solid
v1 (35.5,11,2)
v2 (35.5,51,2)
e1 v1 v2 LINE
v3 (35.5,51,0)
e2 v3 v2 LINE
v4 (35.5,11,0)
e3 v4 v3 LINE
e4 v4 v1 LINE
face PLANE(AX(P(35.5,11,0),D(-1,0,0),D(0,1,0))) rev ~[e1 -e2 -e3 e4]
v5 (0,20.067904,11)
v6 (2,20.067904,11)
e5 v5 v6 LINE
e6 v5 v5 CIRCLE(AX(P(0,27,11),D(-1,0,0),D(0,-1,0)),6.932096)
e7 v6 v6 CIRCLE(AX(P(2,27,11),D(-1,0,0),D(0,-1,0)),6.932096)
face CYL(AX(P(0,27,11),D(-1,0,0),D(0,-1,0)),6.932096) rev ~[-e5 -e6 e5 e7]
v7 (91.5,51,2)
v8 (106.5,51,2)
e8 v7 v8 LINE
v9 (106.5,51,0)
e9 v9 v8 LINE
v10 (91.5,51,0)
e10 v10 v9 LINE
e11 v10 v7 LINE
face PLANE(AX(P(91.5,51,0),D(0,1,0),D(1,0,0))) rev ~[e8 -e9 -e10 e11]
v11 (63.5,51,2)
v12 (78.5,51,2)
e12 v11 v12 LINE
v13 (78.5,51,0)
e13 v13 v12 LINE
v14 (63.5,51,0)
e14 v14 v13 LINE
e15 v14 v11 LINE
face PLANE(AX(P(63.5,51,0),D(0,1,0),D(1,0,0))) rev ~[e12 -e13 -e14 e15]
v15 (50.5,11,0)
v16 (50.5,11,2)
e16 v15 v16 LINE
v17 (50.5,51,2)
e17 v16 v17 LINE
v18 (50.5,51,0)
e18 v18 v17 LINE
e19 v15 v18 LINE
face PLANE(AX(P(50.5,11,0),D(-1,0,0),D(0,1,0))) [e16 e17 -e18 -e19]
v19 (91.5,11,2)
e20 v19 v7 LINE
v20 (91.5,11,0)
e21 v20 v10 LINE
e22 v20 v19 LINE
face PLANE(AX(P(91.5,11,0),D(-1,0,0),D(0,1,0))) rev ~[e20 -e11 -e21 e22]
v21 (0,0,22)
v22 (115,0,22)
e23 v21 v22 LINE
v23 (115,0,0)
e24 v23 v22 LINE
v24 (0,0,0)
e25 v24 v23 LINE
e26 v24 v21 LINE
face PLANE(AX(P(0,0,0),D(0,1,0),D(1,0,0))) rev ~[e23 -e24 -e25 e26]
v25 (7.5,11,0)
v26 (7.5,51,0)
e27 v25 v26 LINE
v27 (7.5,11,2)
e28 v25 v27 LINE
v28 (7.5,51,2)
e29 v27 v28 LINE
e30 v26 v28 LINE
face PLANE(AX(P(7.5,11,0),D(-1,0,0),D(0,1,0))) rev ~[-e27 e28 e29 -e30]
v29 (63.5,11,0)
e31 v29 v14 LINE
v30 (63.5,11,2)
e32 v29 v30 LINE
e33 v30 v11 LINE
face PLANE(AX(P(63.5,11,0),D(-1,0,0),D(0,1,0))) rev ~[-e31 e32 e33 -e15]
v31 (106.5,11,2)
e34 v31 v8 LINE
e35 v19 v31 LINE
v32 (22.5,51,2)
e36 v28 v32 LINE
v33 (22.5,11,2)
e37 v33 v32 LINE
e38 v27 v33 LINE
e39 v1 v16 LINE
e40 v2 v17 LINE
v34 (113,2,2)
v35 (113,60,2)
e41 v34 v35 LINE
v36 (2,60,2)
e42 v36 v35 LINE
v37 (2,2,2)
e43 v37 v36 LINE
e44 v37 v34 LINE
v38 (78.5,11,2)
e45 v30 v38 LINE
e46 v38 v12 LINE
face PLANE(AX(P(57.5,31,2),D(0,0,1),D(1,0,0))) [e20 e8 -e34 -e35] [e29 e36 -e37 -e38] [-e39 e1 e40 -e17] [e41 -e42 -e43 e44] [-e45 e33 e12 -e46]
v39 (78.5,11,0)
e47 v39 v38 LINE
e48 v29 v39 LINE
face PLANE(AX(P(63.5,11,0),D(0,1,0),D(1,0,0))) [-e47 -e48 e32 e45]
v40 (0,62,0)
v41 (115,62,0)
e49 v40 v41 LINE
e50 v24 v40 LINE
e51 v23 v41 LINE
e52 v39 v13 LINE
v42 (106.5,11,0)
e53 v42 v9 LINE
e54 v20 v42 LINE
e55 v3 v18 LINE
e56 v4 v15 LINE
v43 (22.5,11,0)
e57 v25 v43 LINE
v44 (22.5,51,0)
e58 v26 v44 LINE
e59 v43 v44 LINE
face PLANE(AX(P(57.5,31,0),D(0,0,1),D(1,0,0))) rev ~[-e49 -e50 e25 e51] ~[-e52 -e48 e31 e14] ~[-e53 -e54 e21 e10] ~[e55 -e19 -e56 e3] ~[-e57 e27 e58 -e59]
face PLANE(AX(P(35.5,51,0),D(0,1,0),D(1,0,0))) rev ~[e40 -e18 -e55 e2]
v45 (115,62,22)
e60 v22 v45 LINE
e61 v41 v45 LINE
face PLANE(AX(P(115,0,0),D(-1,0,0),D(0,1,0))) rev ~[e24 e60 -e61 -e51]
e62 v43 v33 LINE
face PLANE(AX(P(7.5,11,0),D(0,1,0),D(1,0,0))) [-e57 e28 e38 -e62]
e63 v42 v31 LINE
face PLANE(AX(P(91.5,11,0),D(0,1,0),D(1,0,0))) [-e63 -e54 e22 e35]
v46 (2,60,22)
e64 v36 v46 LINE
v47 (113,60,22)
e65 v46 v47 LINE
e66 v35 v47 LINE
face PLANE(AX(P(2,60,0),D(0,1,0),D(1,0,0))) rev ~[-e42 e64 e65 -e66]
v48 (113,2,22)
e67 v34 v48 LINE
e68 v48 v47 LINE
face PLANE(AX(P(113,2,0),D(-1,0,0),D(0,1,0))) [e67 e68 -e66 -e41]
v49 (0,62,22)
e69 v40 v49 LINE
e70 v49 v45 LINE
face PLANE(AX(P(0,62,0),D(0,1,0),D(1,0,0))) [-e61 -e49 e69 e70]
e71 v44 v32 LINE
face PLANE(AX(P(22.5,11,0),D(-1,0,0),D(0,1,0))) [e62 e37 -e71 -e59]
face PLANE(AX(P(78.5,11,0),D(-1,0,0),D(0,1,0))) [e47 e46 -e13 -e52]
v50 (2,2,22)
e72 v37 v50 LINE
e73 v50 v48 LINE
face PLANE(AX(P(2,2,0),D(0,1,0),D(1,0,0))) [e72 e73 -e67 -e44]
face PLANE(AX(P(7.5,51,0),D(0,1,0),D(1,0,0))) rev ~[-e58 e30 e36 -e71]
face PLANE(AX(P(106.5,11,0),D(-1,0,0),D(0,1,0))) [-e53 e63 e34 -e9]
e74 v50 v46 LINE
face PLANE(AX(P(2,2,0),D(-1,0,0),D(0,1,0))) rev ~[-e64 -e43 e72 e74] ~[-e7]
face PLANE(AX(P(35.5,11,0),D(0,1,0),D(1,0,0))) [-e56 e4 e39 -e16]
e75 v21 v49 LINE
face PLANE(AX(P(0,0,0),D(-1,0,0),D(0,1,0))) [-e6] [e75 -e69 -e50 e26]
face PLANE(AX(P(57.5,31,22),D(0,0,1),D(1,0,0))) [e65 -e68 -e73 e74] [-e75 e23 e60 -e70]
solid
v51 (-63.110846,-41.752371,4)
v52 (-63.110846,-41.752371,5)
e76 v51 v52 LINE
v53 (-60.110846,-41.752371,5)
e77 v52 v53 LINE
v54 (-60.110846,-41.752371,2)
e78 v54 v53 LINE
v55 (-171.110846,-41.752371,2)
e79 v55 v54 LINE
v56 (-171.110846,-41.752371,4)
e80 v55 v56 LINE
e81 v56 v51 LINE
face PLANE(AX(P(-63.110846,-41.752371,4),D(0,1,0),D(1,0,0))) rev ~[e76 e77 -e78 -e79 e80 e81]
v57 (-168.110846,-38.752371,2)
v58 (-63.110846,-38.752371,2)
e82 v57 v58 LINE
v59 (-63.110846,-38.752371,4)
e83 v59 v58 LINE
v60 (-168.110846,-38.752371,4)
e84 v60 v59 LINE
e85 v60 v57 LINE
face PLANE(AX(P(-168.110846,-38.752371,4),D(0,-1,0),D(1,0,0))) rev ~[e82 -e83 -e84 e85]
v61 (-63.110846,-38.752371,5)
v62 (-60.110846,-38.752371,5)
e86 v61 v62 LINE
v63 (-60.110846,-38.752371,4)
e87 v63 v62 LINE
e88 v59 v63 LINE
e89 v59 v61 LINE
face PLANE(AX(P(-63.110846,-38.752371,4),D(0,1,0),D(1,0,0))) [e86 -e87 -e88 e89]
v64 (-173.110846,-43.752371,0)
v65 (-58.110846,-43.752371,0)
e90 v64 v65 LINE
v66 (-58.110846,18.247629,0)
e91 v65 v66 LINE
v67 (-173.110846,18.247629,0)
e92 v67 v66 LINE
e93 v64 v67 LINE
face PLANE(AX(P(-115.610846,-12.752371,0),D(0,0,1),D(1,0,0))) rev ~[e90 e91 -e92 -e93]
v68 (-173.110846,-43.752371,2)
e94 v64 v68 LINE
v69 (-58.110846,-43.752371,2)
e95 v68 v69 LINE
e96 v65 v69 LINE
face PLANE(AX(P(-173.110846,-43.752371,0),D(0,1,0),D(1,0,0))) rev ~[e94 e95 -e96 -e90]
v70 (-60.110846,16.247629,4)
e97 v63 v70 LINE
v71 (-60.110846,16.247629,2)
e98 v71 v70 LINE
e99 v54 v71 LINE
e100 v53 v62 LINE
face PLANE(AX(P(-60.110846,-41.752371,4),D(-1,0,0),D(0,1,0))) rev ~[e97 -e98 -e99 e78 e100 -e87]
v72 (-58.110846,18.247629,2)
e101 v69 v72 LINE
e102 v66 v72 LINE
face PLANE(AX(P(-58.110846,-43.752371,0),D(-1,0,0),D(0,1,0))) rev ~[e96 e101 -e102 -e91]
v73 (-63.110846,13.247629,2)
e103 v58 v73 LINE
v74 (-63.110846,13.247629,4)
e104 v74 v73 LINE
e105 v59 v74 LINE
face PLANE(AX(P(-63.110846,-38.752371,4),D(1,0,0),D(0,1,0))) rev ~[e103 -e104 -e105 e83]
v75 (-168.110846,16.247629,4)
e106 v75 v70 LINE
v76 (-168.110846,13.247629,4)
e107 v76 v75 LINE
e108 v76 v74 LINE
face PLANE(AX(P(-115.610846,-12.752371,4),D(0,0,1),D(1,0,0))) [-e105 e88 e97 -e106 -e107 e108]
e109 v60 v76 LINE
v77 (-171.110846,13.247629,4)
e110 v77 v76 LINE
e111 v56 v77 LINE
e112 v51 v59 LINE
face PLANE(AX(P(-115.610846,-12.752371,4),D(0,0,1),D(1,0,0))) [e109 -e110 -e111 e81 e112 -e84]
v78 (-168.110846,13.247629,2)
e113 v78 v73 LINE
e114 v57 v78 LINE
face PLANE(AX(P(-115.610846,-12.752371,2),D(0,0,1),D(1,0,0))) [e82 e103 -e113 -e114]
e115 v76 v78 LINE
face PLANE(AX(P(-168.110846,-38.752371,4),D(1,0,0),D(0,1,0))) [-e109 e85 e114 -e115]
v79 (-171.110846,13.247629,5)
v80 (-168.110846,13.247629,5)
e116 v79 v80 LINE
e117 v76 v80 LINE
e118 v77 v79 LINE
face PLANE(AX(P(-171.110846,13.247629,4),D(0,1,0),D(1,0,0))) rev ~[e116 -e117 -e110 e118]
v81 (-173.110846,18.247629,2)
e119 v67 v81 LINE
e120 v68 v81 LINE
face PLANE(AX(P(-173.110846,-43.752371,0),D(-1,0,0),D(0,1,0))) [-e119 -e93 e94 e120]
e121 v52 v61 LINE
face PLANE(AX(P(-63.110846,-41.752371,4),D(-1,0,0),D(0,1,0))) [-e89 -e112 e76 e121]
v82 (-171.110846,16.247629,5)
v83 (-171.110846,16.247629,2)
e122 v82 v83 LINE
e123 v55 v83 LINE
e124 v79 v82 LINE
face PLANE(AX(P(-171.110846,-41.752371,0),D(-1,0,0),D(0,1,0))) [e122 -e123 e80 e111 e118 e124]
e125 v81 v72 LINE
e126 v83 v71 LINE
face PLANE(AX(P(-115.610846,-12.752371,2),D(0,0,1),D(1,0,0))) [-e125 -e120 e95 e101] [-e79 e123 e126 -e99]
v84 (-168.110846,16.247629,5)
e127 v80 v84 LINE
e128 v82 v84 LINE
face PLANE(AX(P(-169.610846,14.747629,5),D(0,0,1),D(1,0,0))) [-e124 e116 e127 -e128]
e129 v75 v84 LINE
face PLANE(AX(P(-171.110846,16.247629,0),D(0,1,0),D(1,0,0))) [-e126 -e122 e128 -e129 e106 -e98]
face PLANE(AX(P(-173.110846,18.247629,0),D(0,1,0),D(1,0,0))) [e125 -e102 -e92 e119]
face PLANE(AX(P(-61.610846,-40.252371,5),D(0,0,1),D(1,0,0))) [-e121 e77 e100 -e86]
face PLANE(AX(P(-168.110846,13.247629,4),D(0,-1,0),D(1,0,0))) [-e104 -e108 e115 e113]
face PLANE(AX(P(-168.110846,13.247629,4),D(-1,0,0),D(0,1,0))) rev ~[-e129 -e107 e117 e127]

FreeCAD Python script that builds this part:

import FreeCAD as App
import Part
import Sketcher
Q = App.Units.Quantity


def add_polygon(sketch, points):
    """Adds a closed chain of lines whose ends are joined by coincident constraints."""
    first, n = sketch.GeometryCount, len(points)
    for a, b in zip(points, points[1:] + points[:1]):
        sketch.addGeometry(Part.LineSegment(App.Vector(*a, 0), App.Vector(*b, 0)), False)
    for i in range(n):
        sketch.addConstraint(Sketcher.Constraint("Coincident", first + i, 2, first + (i + 1) % n, 1))

doc = App.newDocument("Part")
body = doc.addObject("PartDesign::Body", "Body")

# Sketch on XY plane
sketch1 = body.newObject("Sketcher::SketchObject", "Sketch")
sketch1.AttachmentSupport = (doc.getObject("XY_Plane"), [""])
sketch1.MapMode = "FlatFace"
add_polygon(sketch1, [(2, 60), (2, 2), (113, 2), (113, 60)])  # lines 0-3
add_polygon(sketch1, [(22.5, 11), (7.5, 11), (7.5, 51), (22.5, 51)])  # lines 4-7
add_polygon(sketch1, [(50.5, 11), (35.5, 11), (35.5, 51), (50.5, 51)])  # lines 8-11
add_polygon(sketch1, [(78.5, 11), (63.5, 11), (63.5, 51), (78.5, 51)])  # lines 12-15
add_polygon(sketch1, [(106.5, 11), (91.5, 11), (91.5, 51), (106.5, 51)])  # lines 16-19
sketch1.addConstraint([
    Sketcher.Constraint("Vertical", 0),
    Sketcher.Constraint("Horizontal", 1),
    Sketcher.Constraint("Vertical", 2),
    Sketcher.Constraint("Horizontal", 3),
    Sketcher.Constraint("Horizontal", 4),
    Sketcher.Constraint("Vertical", 5),
    Sketcher.Constraint("Horizontal", 6),
    Sketcher.Constraint("Vertical", 7),
    Sketcher.Constraint("Horizontal", 8),
    Sketcher.Constraint("Vertical", 9),
    Sketcher.Constraint("Horizontal", 10),
    Sketcher.Constraint("Vertical", 11),
    Sketcher.Constraint("Horizontal", 12),
    Sketcher.Constraint("Vertical", 13),
    Sketcher.Constraint("Horizontal", 14),
    Sketcher.Constraint("Vertical", 15),
    Sketcher.Constraint("Horizontal", 16),
    Sketcher.Constraint("Vertical", 17),
    Sketcher.Constraint("Horizontal", 18),
    Sketcher.Constraint("Vertical", 19),
    Sketcher.Constraint("Horizontal", 7, 2, 8, 2),
    Sketcher.Constraint("Horizontal", 6, 2, 9, 2),
    Sketcher.Constraint("Horizontal", 11, 2, 12, 2),
    Sketcher.Constraint("Horizontal", 10, 2, 13, 2),
    Sketcher.Constraint("Horizontal", 15, 2, 16, 2),
    Sketcher.Constraint("Horizontal", 14, 2, 17, 2),
    Sketcher.Constraint("Equal", 6, 8),
    Sketcher.Constraint("Equal", 10, 12),
    Sketcher.Constraint("Equal", 14, 16),
    Sketcher.Constraint("DistanceX", 1, 1, 1, 2, Q("111 mm")),
    Sketcher.Constraint("DistanceX", 4, 2, 4, 1, Q("15 mm")),
    Sketcher.Constraint("DistanceY", 0, 2, 0, 1, Q("58 mm")),
    Sketcher.Constraint("DistanceY", 5, 1, 5, 2, Q("40 mm")),
    Sketcher.Constraint("DistanceX", -1, 1, 0, 2, Q("2 mm")),
    Sketcher.Constraint("DistanceY", -1, 1, 0, 2, Q("2 mm")),
    Sketcher.Constraint("DistanceY", -1, 1, 4, 2, Q("11 mm")),
    Sketcher.Constraint("DistanceX", 7, 2, 8, 2, Q("13 mm")),
    Sketcher.Constraint("DistanceX", 11, 2, 12, 2, Q("13 mm")),
    Sketcher.Constraint("DistanceX", 15, 2, 16, 2, Q("13 mm")),
    Sketcher.Constraint("DistanceX", -1, 1, 4, 2, Q("7.5 mm")),
])
pad1 = body.newObject("PartDesign::Pad", "Pad")
pad1.Profile = sketch1
pad1.Length = 2

# Sketch on XY plane
sketch2 = body.newObject("Sketcher::SketchObject", "Sketch001")
sketch2.AttachmentSupport = (doc.getObject("XY_Plane"), [""])
sketch2.MapMode = "FlatFace"
add_polygon(sketch2, [(0, 62), (0, 0), (115, 0), (115, 62)])  # lines 0-3
add_polygon(sketch2, [(113, 2), (2, 2), (2, 60), (113, 60)])  # lines 4-7
sketch2.addConstraint([
    Sketcher.Constraint("Vertical", 0),
    Sketcher.Constraint("Horizontal", 1),
    Sketcher.Constraint("Vertical", 2),
    Sketcher.Constraint("Horizontal", 3),
    Sketcher.Constraint("Horizontal", 4),
    Sketcher.Constraint("Vertical", 5),
    Sketcher.Constraint("Horizontal", 6),
    Sketcher.Constraint("Vertical", 7),
    Sketcher.Constraint("Coincident", 0, 2, -1, 1),
    Sketcher.Constraint("DistanceX", 1, 1, 1, 2, Q("115 mm")),
    Sketcher.Constraint("DistanceX", 4, 2, 4, 1, Q("111 mm")),
    Sketcher.Constraint("DistanceY", 0, 2, 0, 1, Q("62 mm")),
    Sketcher.Constraint("DistanceY", 5, 1, 5, 2, Q("58 mm")),
    Sketcher.Constraint("DistanceX", -1, 1, 4, 2, Q("2 mm")),
    Sketcher.Constraint("DistanceY", -1, 1, 4, 2, Q("2 mm")),
])
pad2 = body.newObject("PartDesign::Pad", "Pad001")
pad2.Profile = sketch2
pad2.Length = 22

# Sketch on YZ plane
sketch3 = body.newObject("Sketcher::SketchObject", "Sketch002")
sketch3.AttachmentSupport = (doc.getObject("YZ_Plane"), [""])
sketch3.MapMode = "FlatFace"
sketch3.addGeometry(Part.Circle(App.Vector(27, 11, 0), App.Vector(0, 0, 1), 6.932096), False)
sketch3.addConstraint([
    Sketcher.Constraint("DistanceX", -1, 1, 0, 3, Q("27 mm")),
    Sketcher.Constraint("DistanceY", -1, 1, 0, 3, Q("11 mm")),
    Sketcher.Constraint("Diameter", 0, Q("13.864192 mm")),
])
pocket1 = body.newObject("PartDesign::Pocket", "Pocket")
pocket1.Profile = sketch3
pocket1.Length = 25
pocket1.Reversed = True
body2 = doc.addObject("PartDesign::Body", "Body001")

# Sketch on XY plane
sketch4 = body2.newObject("Sketcher::SketchObject", "Sketch003")
sketch4.AttachmentSupport = (doc.getObject("XY_Plane001"), [""])
sketch4.MapMode = "FlatFace"
add_polygon(sketch4, [(-173.110846, 18.247629), (-173.110846, -43.752371), (-58.110846, -43.752371), (-58.110846, 18.247629)])  # lines 0-3
add_polygon(sketch4, [(-60.110846, -41.752371), (-171.110846, -41.752371), (-171.110846, 16.247629), (-60.110846, 16.247629)])  # lines 4-7
sketch4.addConstraint([
    Sketcher.Constraint("Vertical", 0),
    Sketcher.Constraint("Horizontal", 1),
    Sketcher.Constraint("Vertical", 2),
    Sketcher.Constraint("Horizontal", 3),
    Sketcher.Constraint("Horizontal", 4),
    Sketcher.Constraint("Vertical", 5),
    Sketcher.Constraint("Horizontal", 6),
    Sketcher.Constraint("Vertical", 7),
    Sketcher.Constraint("DistanceX", 1, 1, 1, 2, Q("115 mm")),
    Sketcher.Constraint("DistanceX", 4, 2, 4, 1, Q("111 mm")),
    Sketcher.Constraint("DistanceY", 0, 2, 0, 1, Q("62 mm")),
    Sketcher.Constraint("DistanceY", 5, 1, 5, 2, Q("58 mm")),
    Sketcher.Constraint("DistanceX", 0, 2, 4, 2, Q("2 mm")),
    Sketcher.Constraint("DistanceY", 0, 2, 4, 2, Q("2 mm")),
    Sketcher.Constraint("DistanceY", 0, 2, -1, 1, Q("43.752371 mm")),
    Sketcher.Constraint("DistanceX", 0, 2, -1, 1, Q("173.110846 mm")),
])
pad3 = body2.newObject("PartDesign::Pad", "Pad002")
pad3.Profile = sketch4
pad3.Length = 2

# Sketch on XY plane
sketch5 = body2.newObject("Sketcher::SketchObject", "Sketch004")
sketch5.AttachmentSupport = (doc.getObject("XY_Plane001"), [""])
sketch5.MapMode = "FlatFace"
add_polygon(sketch5, [(-171.110846, 16.247629), (-171.110846, -41.752371), (-60.110846, -41.752371), (-60.110846, 16.247629)])  # lines 0-3
sketch5.addConstraint([
    Sketcher.Constraint("Vertical", 0),
    Sketcher.Constraint("Horizontal", 1),
    Sketcher.Constraint("Vertical", 2),
    Sketcher.Constraint("Horizontal", 3),
    Sketcher.Constraint("DistanceX", 1, 1, 1, 2, Q("111 mm")),
    Sketcher.Constraint("DistanceY", 0, 2, 0, 1, Q("58 mm")),
    Sketcher.Constraint("DistanceY", 0, 2, -1, 1, Q("41.752371 mm")),
    Sketcher.Constraint("DistanceX", 0, 2, -1, 1, Q("171.110846 mm")),
])
pad4 = body2.newObject("PartDesign::Pad", "Pad003")
pad4.Profile = sketch5
pad4.Length = 4

# Sketch on XY plane
sketch6 = body2.newObject("Sketcher::SketchObject", "Sketch005")
sketch6.AttachmentSupport = (doc.getObject("XY_Plane001"), [""])
sketch6.MapMode = "FlatFace"
sketch6.AttachmentOffset = App.Placement(App.Vector(0, 0, 4), App.Rotation())
add_polygon(sketch6, [(-168.110846, 13.247629), (-168.110846, -38.752371), (-63.110846, -38.752371), (-63.110846, 13.247629)])  # lines 0-3
sketch6.addConstraint([
    Sketcher.Constraint("Vertical", 0),
    Sketcher.Constraint("Horizontal", 1),
    Sketcher.Constraint("Vertical", 2),
    Sketcher.Constraint("Horizontal", 3),
    Sketcher.Constraint("DistanceX", 1, 1, 1, 2, Q("105 mm")),
    Sketcher.Constraint("DistanceY", 0, 2, 0, 1, Q("52 mm")),
    Sketcher.Constraint("DistanceY", 0, 2, -1, 1, Q("38.752371 mm")),
    Sketcher.Constraint("DistanceX", 0, 2, -1, 1, Q("168.110846 mm")),
])
pocket2 = body2.newObject("PartDesign::Pocket", "Pocket001")
pocket2.Profile = sketch6
pocket2.Length = 2

# Sketch on XY plane
sketch7 = body2.newObject("Sketcher::SketchObject", "Sketch006")
sketch7.AttachmentSupport = (doc.getObject("XY_Plane001"), [""])
sketch7.MapMode = "FlatFace"
sketch7.AttachmentOffset = App.Placement(App.Vector(0, 0, 4), App.Rotation())
add_polygon(sketch7, [(-63.110846, -38.752371), (-63.110846, -41.752371), (-60.110846, -41.752371), (-60.110846, -38.752371)])  # lines 0-3
add_polygon(sketch7, [(-171.110846, 16.247629), (-171.110846, 13.247629), (-168.110846, 13.247629), (-168.110846, 16.247629)])  # lines 4-7
sketch7.addConstraint([
    Sketcher.Constraint("Vertical", 0),
    Sketcher.Constraint("Horizontal", 1),
    Sketcher.Constraint("Vertical", 2),
    Sketcher.Constraint("Horizontal", 3),
    Sketcher.Constraint("Vertical", 4),
    Sketcher.Constraint("Horizontal", 5),
    Sketcher.Constraint("Vertical", 6),
    Sketcher.Constraint("Horizontal", 7),
    Sketcher.Constraint("Equal", 3, 5),
    Sketcher.Constraint("Equal", 7, 0),
    Sketcher.Constraint("Equal", 2, 4),
    Sketcher.Constraint("DistanceX", 1, 1, 1, 2, Q("3 mm")),
    Sketcher.Constraint("DistanceX", 4, 2, 3, 2, Q("108 mm")),
    Sketcher.Constraint("DistanceY", 3, 2, 4, 2, Q("52 mm")),
    Sketcher.Constraint("DistanceY", 0, 2, -1, 1, Q("41.752371 mm")),
    Sketcher.Constraint("DistanceX", 0, 2, -1, 1, Q("63.110846 mm")),
])
pad5 = body2.newObject("PartDesign::Pad", "Pad004")
pad5.Profile = sketch7
pad5.Length = 1

doc.recompute()
